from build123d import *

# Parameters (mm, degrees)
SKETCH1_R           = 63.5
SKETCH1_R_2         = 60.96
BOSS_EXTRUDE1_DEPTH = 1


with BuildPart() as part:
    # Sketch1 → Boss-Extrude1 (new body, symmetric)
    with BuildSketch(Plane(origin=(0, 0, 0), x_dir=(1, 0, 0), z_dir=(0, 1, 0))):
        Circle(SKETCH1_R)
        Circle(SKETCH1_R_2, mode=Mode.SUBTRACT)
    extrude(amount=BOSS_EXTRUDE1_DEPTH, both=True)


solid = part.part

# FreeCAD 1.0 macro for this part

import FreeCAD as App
import Part
import Sketcher
from FreeCAD import Vector
Q = App.Units.Quantity

doc = App.newDocument("Part")
body = doc.addObject("PartDesign::Body", "Body")

sketch1 = doc.addObject("Sketcher::SketchObject", "Sketch")
body.addObject(sketch1)
sketch1.AttachmentSupport = (doc.XZ_Plane, [""])
sketch1.MapMode = "FlatFace"
sketch1.addGeometry([
    Part.Circle(Vector(0, 0, 0), Vector(0, 0, 1), 63.5),
    Part.Circle(Vector(0, 0, 0), Vector(0, 0, 1), 60.96),
], False)
sketch1.addConstraint([
    Sketcher.Constraint("Coincident", 0, 3, -1, 1),
    Sketcher.Constraint("Coincident", 1, 3, -1, 1),
    Sketcher.Constraint("Diameter", 0, Q("5 in")),
    Sketcher.Constraint("Diameter", 1, Q("4.8 in")),
])
pad1 = doc.addObject("PartDesign::Pad", "Pad")
body.addObject(pad1)
pad1.Profile = sketch1
pad1.Length = 2
pad1.Midplane = True

doc.recompute()
